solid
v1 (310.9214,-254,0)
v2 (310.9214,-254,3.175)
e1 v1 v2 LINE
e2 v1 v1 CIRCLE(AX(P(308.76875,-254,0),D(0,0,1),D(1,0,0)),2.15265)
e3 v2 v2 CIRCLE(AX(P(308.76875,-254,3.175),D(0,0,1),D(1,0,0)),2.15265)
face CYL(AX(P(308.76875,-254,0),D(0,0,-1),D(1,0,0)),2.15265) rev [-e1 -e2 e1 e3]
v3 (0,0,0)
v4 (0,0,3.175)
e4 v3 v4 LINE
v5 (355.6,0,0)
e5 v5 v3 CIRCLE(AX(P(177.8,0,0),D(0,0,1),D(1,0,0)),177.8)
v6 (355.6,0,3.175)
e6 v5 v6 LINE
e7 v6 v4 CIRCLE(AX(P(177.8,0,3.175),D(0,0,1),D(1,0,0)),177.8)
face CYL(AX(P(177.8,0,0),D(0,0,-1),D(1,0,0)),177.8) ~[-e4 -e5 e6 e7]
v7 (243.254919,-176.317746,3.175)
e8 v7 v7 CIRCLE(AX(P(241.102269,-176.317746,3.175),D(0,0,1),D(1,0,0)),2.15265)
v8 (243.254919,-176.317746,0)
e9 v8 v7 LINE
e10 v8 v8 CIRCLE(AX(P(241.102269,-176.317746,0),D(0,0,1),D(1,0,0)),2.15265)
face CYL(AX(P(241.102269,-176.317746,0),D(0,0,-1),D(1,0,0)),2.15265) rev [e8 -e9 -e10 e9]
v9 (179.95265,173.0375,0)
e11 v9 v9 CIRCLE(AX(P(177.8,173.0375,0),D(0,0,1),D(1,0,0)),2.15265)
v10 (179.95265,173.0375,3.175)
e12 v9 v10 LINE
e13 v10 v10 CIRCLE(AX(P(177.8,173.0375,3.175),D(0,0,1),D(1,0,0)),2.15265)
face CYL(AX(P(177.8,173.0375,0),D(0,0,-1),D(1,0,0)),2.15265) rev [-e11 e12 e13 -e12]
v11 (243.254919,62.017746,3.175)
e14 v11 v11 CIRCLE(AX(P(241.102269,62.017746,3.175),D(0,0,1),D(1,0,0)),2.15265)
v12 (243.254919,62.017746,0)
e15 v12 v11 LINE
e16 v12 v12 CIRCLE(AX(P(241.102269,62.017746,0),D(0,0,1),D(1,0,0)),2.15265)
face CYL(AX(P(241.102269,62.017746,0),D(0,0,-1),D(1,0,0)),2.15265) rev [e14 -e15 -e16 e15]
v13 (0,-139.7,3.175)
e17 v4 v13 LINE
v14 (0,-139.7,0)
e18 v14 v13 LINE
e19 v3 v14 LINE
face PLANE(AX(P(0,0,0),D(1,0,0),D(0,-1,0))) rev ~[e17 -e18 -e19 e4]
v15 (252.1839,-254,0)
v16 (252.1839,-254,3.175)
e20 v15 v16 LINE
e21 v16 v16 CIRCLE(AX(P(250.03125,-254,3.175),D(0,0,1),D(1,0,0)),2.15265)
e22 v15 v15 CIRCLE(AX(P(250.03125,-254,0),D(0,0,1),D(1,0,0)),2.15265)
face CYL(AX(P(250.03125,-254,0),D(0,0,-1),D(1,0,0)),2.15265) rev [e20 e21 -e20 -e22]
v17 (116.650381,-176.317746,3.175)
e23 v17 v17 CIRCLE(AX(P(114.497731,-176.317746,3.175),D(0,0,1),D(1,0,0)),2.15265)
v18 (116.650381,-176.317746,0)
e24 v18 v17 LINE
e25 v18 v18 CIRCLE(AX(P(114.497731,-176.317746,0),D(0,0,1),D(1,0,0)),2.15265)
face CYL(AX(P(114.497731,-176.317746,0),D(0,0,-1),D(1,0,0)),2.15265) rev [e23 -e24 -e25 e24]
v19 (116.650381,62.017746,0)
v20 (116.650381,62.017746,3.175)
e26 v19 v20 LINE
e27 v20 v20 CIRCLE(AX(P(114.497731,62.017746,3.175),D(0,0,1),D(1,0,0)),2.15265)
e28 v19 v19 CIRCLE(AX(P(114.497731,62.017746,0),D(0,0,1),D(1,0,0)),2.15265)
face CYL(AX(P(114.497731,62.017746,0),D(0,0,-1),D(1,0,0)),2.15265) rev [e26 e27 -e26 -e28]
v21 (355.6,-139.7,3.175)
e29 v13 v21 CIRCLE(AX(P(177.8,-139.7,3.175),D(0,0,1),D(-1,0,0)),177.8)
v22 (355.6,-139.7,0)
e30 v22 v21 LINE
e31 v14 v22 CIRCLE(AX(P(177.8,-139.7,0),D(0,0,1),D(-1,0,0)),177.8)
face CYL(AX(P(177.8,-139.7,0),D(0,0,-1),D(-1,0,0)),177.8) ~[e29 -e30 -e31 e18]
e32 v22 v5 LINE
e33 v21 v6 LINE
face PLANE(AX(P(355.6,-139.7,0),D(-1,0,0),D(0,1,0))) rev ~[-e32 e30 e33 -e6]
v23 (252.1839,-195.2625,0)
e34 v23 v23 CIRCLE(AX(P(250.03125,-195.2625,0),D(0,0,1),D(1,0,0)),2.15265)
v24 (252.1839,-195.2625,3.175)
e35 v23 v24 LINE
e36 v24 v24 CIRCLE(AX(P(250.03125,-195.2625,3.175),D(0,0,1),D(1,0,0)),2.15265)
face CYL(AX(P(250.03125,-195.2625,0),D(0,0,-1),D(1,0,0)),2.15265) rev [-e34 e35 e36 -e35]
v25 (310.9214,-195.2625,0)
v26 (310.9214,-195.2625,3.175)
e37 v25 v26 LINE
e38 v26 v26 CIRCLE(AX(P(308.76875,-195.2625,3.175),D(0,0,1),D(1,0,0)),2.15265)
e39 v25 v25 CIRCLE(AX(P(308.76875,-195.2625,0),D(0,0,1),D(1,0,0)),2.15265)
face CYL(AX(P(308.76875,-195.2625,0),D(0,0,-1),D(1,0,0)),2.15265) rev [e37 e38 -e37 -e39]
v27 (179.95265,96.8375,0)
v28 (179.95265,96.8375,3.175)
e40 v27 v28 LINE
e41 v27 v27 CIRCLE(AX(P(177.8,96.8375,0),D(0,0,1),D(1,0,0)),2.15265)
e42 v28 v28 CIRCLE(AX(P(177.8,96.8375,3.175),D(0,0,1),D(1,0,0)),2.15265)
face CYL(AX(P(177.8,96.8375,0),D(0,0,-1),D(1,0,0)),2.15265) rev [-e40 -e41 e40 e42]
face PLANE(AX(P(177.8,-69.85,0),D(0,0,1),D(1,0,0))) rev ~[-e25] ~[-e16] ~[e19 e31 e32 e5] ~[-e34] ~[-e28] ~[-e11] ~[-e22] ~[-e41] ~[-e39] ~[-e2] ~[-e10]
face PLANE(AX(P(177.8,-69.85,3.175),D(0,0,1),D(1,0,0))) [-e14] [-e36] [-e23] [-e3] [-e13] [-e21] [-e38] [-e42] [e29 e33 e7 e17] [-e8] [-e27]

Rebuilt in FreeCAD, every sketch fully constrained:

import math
import FreeCAD as App
import Part
import Sketcher
from FreeCAD import Vector
Q = App.Units.Quantity

doc = App.newDocument("Part")
body = doc.addObject("PartDesign::Body", "Body")

# Sketch on XY plane
sketch1 = body.newObject("Sketcher::SketchObject", "Sketch")
sketch1.AttachmentSupport = (doc.getObject("XY_Plane"), [""])
sketch1.MapMode = "FlatFace"
sketch1.addGeometry(Part.ArcOfCircle(Part.Circle(Vector(177.8, 0, 0), Vector(0, 0, 1), 177.8), math.radians(0), math.radians(180)), False)
sketch1.addGeometry(Part.LineSegment(Vector(0, 0, 0), Vector(0, -139.7, 0)), False)
sketch1.addGeometry(Part.ArcOfCircle(Part.Circle(Vector(177.8, -139.7, 0), Vector(0, 0, 1), 177.8), math.radians(180), math.radians(360)), False)
sketch1.addGeometry(Part.LineSegment(Vector(355.6, -139.7, 0), Vector(355.6, 0, 0)), False)
sketch1.addGeometry(Part.Circle(Vector(114.5, -176.3, 0), Vector(0, 0, 1), 2.2), False)
sketch1.addGeometry(Part.Circle(Vector(250, -254, 0), Vector(0, 0, 1), 2.2), False)
sketch1.addGeometry(Part.Circle(Vector(241.1, -176.3, 0), Vector(0, 0, 1), 2.2), False)
sketch1.addGeometry(Part.Circle(Vector(250, -195.3, 0), Vector(0, 0, 1), 2.2), False)
sketch1.addGeometry(Part.Circle(Vector(308.8, -254, 0), Vector(0, 0, 1), 2.2), False)
sketch1.addGeometry(Part.Circle(Vector(308.8, -195.3, 0), Vector(0, 0, 1), 2.2), False)
sketch1.addGeometry(Part.Circle(Vector(114.5, 62, 0), Vector(0, 0, 1), 2.2), False)
sketch1.addGeometry(Part.Circle(Vector(177.8, 96.8, 0), Vector(0, 0, 1), 2.2), False)
sketch1.addGeometry(Part.Circle(Vector(177.8, 173, 0), Vector(0, 0, 1), 2.2), False)
sketch1.addGeometry(Part.Circle(Vector(241.1, 62, 0), Vector(0, 0, 1), 2.2), False)
sketch1.addConstraint(Sketcher.Constraint("Tangent", 0, 2, 1, 1))
sketch1.addConstraint(Sketcher.Constraint("Tangent", 1, 2, 2, 1))
sketch1.addConstraint(Sketcher.Constraint("Tangent", 2, 2, 3, 1))
sketch1.addConstraint(Sketcher.Constraint("Tangent", 3, 2, 0, 1))
sketch1.addConstraint(Sketcher.Constraint("Vertical", 1))
sketch1.addConstraint(Sketcher.Constraint("Vertical", 3))
sketch1.addConstraint(Sketcher.Constraint("Coincident", 0, 2, -1, 1))
sketch1.addConstraint(Sketcher.Constraint("Equal", 4, 5))
sketch1.addConstraint(Sketcher.Constraint("Equal", 5, 6))
sketch1.addConstraint(Sketcher.Constraint("Equal", 6, 7))
sketch1.addConstraint(Sketcher.Constraint("Equal", 7, 8))
sketch1.addConstraint(Sketcher.Constraint("Equal", 8, 9))
sketch1.addConstraint(Sketcher.Constraint("Equal", 9, 10))
sketch1.addConstraint(Sketcher.Constraint("Equal", 10, 11))
sketch1.addConstraint(Sketcher.Constraint("Equal", 11, 12))
sketch1.addConstraint(Sketcher.Constraint("Equal", 12, 13))
sketch1.addConstraint(Sketcher.Constraint("Horizontal", 4, 3, 6, 3))
sketch1.addConstraint(Sketcher.Constraint("Horizontal", 5, 3, 8, 3))
sketch1.addConstraint(Sketcher.Constraint("Horizontal", 7, 3, 9, 3))
sketch1.addConstraint(Sketcher.Constraint("Horizontal", 10, 3, 13, 3))
sketch1.addConstraint(Sketcher.Constraint("Vertical", 5, 3, 7, 3))
sketch1.addConstraint(Sketcher.Constraint("Vertical", 8, 3, 9, 3))
sketch1.addConstraint(Sketcher.Constraint("Vertical", 4, 3, 10, 3))
sketch1.addConstraint(Sketcher.Constraint("Vertical", 2, 3, 11, 3))
sketch1.addConstraint(Sketcher.Constraint("Vertical", 11, 3, 12, 3))
sketch1.addConstraint(Sketcher.Constraint("Vertical", 6, 3, 13, 3))
sketch1.addConstraint(Sketcher.Constraint("Radius", 0, Q("7 in")))
sketch1.addConstraint(Sketcher.Constraint("DistanceY", 1, 2, 1, 1, Q("5.5 in")))
sketch1.addConstraint(Sketcher.Constraint("DistanceY", 5, 3, -1, 1, Q("10 in")))
sketch1.addConstraint(Sketcher.Constraint("DistanceY", 11, 3, 12, 3, Q("3 in")))
sketch1.addConstraint(Sketcher.Constraint("Diameter", 4, Q("0.1695 in")))
sketch1.addConstraint(Sketcher.Constraint("DistanceX", -1, 1, 5, 3, Q("9.84375 in")))
sketch1.addConstraint(Sketcher.Constraint("DistanceY", 7, 3, -1, 1, Q("7.6875 in")))
sketch1.addConstraint(Sketcher.Constraint("DistanceX", -1, 1, 8, 3, Q("12.15625 in")))
sketch1.addConstraint(Sketcher.Constraint("DistanceY", -1, 1, 11, 3, Q("3.8125 in")))
sketch1.addConstraint(Sketcher.Constraint("DistanceX", -1, 1, 4, 3, Q("114.497731 mm")))
sketch1.addConstraint(Sketcher.Constraint("DistanceX", -1, 1, 6, 3, Q("241.102269 mm")))
sketch1.addConstraint(Sketcher.Constraint("DistanceY", 4, 3, 10, 3, Q("238.335492 mm")))
sketch1.addConstraint(Sketcher.Constraint("DistanceY", 4, 3, -1, 1, Q("176.317746 mm")))
pad1 = body.newObject("PartDesign::Pad", "Pad")
pad1.Profile = sketch1
pad1.Length = Q("0.125 in")

doc.recompute()
